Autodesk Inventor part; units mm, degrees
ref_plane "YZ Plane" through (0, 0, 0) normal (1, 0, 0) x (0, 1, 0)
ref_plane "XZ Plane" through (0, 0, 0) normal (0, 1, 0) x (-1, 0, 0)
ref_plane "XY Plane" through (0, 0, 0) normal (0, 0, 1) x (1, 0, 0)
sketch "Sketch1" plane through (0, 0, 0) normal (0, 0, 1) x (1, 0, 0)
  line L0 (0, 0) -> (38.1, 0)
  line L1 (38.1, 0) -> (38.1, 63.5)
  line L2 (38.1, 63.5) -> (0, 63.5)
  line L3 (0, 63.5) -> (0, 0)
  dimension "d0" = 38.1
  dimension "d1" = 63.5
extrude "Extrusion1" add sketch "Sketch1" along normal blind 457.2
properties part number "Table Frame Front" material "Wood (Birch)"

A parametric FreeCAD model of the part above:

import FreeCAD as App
import Part
import Sketcher

V = App.Vector
Q = App.Units.Quantity

doc = App.newDocument("Part")
body = doc.addObject("PartDesign::Body", "Body")

sketch1 = doc.addObject("Sketcher::SketchObject", "Sketch")
body.addObject(sketch1)
sketch1.AttachmentSupport = (doc.XY_Plane, [""])
sketch1.MapMode = "FlatFace"
sketch1.addGeometry(Part.LineSegment(V(0, 63.5, 0), V(0, 0, 0)), False)
sketch1.addGeometry(Part.LineSegment(V(0, 0, 0), V(38.1, 0, 0)), False)
sketch1.addGeometry(Part.LineSegment(V(38.1, 0, 0), V(38.1, 63.5, 0)), False)
sketch1.addGeometry(Part.LineSegment(V(38.1, 63.5, 0), V(0, 63.5, 0)), False)
sketch1.addConstraint(Sketcher.Constraint("Coincident", 0, 2, 1, 1))
sketch1.addConstraint(Sketcher.Constraint("Coincident", 1, 2, 2, 1))
sketch1.addConstraint(Sketcher.Constraint("Coincident", 2, 2, 3, 1))
sketch1.addConstraint(Sketcher.Constraint("Coincident", 3, 2, 0, 1))
sketch1.addConstraint(Sketcher.Constraint("Vertical", 0))
sketch1.addConstraint(Sketcher.Constraint("Horizontal", 1))
sketch1.addConstraint(Sketcher.Constraint("Vertical", 2))
sketch1.addConstraint(Sketcher.Constraint("Horizontal", 3))
sketch1.addConstraint(Sketcher.Constraint("Coincident", 0, 2, -1, 1))
sketch1.addConstraint(Sketcher.Constraint("DistanceX", 1, 1, 1, 2, Q("1.5 in")))
sketch1.addConstraint(Sketcher.Constraint("DistanceY", 0, 2, 0, 1, Q("2.5 in")))
pad1 = doc.addObject("PartDesign::Pad", "Pad")
body.addObject(pad1)
pad1.Profile = sketch1
pad1.Length = Q("18 in")

doc.recompute()
